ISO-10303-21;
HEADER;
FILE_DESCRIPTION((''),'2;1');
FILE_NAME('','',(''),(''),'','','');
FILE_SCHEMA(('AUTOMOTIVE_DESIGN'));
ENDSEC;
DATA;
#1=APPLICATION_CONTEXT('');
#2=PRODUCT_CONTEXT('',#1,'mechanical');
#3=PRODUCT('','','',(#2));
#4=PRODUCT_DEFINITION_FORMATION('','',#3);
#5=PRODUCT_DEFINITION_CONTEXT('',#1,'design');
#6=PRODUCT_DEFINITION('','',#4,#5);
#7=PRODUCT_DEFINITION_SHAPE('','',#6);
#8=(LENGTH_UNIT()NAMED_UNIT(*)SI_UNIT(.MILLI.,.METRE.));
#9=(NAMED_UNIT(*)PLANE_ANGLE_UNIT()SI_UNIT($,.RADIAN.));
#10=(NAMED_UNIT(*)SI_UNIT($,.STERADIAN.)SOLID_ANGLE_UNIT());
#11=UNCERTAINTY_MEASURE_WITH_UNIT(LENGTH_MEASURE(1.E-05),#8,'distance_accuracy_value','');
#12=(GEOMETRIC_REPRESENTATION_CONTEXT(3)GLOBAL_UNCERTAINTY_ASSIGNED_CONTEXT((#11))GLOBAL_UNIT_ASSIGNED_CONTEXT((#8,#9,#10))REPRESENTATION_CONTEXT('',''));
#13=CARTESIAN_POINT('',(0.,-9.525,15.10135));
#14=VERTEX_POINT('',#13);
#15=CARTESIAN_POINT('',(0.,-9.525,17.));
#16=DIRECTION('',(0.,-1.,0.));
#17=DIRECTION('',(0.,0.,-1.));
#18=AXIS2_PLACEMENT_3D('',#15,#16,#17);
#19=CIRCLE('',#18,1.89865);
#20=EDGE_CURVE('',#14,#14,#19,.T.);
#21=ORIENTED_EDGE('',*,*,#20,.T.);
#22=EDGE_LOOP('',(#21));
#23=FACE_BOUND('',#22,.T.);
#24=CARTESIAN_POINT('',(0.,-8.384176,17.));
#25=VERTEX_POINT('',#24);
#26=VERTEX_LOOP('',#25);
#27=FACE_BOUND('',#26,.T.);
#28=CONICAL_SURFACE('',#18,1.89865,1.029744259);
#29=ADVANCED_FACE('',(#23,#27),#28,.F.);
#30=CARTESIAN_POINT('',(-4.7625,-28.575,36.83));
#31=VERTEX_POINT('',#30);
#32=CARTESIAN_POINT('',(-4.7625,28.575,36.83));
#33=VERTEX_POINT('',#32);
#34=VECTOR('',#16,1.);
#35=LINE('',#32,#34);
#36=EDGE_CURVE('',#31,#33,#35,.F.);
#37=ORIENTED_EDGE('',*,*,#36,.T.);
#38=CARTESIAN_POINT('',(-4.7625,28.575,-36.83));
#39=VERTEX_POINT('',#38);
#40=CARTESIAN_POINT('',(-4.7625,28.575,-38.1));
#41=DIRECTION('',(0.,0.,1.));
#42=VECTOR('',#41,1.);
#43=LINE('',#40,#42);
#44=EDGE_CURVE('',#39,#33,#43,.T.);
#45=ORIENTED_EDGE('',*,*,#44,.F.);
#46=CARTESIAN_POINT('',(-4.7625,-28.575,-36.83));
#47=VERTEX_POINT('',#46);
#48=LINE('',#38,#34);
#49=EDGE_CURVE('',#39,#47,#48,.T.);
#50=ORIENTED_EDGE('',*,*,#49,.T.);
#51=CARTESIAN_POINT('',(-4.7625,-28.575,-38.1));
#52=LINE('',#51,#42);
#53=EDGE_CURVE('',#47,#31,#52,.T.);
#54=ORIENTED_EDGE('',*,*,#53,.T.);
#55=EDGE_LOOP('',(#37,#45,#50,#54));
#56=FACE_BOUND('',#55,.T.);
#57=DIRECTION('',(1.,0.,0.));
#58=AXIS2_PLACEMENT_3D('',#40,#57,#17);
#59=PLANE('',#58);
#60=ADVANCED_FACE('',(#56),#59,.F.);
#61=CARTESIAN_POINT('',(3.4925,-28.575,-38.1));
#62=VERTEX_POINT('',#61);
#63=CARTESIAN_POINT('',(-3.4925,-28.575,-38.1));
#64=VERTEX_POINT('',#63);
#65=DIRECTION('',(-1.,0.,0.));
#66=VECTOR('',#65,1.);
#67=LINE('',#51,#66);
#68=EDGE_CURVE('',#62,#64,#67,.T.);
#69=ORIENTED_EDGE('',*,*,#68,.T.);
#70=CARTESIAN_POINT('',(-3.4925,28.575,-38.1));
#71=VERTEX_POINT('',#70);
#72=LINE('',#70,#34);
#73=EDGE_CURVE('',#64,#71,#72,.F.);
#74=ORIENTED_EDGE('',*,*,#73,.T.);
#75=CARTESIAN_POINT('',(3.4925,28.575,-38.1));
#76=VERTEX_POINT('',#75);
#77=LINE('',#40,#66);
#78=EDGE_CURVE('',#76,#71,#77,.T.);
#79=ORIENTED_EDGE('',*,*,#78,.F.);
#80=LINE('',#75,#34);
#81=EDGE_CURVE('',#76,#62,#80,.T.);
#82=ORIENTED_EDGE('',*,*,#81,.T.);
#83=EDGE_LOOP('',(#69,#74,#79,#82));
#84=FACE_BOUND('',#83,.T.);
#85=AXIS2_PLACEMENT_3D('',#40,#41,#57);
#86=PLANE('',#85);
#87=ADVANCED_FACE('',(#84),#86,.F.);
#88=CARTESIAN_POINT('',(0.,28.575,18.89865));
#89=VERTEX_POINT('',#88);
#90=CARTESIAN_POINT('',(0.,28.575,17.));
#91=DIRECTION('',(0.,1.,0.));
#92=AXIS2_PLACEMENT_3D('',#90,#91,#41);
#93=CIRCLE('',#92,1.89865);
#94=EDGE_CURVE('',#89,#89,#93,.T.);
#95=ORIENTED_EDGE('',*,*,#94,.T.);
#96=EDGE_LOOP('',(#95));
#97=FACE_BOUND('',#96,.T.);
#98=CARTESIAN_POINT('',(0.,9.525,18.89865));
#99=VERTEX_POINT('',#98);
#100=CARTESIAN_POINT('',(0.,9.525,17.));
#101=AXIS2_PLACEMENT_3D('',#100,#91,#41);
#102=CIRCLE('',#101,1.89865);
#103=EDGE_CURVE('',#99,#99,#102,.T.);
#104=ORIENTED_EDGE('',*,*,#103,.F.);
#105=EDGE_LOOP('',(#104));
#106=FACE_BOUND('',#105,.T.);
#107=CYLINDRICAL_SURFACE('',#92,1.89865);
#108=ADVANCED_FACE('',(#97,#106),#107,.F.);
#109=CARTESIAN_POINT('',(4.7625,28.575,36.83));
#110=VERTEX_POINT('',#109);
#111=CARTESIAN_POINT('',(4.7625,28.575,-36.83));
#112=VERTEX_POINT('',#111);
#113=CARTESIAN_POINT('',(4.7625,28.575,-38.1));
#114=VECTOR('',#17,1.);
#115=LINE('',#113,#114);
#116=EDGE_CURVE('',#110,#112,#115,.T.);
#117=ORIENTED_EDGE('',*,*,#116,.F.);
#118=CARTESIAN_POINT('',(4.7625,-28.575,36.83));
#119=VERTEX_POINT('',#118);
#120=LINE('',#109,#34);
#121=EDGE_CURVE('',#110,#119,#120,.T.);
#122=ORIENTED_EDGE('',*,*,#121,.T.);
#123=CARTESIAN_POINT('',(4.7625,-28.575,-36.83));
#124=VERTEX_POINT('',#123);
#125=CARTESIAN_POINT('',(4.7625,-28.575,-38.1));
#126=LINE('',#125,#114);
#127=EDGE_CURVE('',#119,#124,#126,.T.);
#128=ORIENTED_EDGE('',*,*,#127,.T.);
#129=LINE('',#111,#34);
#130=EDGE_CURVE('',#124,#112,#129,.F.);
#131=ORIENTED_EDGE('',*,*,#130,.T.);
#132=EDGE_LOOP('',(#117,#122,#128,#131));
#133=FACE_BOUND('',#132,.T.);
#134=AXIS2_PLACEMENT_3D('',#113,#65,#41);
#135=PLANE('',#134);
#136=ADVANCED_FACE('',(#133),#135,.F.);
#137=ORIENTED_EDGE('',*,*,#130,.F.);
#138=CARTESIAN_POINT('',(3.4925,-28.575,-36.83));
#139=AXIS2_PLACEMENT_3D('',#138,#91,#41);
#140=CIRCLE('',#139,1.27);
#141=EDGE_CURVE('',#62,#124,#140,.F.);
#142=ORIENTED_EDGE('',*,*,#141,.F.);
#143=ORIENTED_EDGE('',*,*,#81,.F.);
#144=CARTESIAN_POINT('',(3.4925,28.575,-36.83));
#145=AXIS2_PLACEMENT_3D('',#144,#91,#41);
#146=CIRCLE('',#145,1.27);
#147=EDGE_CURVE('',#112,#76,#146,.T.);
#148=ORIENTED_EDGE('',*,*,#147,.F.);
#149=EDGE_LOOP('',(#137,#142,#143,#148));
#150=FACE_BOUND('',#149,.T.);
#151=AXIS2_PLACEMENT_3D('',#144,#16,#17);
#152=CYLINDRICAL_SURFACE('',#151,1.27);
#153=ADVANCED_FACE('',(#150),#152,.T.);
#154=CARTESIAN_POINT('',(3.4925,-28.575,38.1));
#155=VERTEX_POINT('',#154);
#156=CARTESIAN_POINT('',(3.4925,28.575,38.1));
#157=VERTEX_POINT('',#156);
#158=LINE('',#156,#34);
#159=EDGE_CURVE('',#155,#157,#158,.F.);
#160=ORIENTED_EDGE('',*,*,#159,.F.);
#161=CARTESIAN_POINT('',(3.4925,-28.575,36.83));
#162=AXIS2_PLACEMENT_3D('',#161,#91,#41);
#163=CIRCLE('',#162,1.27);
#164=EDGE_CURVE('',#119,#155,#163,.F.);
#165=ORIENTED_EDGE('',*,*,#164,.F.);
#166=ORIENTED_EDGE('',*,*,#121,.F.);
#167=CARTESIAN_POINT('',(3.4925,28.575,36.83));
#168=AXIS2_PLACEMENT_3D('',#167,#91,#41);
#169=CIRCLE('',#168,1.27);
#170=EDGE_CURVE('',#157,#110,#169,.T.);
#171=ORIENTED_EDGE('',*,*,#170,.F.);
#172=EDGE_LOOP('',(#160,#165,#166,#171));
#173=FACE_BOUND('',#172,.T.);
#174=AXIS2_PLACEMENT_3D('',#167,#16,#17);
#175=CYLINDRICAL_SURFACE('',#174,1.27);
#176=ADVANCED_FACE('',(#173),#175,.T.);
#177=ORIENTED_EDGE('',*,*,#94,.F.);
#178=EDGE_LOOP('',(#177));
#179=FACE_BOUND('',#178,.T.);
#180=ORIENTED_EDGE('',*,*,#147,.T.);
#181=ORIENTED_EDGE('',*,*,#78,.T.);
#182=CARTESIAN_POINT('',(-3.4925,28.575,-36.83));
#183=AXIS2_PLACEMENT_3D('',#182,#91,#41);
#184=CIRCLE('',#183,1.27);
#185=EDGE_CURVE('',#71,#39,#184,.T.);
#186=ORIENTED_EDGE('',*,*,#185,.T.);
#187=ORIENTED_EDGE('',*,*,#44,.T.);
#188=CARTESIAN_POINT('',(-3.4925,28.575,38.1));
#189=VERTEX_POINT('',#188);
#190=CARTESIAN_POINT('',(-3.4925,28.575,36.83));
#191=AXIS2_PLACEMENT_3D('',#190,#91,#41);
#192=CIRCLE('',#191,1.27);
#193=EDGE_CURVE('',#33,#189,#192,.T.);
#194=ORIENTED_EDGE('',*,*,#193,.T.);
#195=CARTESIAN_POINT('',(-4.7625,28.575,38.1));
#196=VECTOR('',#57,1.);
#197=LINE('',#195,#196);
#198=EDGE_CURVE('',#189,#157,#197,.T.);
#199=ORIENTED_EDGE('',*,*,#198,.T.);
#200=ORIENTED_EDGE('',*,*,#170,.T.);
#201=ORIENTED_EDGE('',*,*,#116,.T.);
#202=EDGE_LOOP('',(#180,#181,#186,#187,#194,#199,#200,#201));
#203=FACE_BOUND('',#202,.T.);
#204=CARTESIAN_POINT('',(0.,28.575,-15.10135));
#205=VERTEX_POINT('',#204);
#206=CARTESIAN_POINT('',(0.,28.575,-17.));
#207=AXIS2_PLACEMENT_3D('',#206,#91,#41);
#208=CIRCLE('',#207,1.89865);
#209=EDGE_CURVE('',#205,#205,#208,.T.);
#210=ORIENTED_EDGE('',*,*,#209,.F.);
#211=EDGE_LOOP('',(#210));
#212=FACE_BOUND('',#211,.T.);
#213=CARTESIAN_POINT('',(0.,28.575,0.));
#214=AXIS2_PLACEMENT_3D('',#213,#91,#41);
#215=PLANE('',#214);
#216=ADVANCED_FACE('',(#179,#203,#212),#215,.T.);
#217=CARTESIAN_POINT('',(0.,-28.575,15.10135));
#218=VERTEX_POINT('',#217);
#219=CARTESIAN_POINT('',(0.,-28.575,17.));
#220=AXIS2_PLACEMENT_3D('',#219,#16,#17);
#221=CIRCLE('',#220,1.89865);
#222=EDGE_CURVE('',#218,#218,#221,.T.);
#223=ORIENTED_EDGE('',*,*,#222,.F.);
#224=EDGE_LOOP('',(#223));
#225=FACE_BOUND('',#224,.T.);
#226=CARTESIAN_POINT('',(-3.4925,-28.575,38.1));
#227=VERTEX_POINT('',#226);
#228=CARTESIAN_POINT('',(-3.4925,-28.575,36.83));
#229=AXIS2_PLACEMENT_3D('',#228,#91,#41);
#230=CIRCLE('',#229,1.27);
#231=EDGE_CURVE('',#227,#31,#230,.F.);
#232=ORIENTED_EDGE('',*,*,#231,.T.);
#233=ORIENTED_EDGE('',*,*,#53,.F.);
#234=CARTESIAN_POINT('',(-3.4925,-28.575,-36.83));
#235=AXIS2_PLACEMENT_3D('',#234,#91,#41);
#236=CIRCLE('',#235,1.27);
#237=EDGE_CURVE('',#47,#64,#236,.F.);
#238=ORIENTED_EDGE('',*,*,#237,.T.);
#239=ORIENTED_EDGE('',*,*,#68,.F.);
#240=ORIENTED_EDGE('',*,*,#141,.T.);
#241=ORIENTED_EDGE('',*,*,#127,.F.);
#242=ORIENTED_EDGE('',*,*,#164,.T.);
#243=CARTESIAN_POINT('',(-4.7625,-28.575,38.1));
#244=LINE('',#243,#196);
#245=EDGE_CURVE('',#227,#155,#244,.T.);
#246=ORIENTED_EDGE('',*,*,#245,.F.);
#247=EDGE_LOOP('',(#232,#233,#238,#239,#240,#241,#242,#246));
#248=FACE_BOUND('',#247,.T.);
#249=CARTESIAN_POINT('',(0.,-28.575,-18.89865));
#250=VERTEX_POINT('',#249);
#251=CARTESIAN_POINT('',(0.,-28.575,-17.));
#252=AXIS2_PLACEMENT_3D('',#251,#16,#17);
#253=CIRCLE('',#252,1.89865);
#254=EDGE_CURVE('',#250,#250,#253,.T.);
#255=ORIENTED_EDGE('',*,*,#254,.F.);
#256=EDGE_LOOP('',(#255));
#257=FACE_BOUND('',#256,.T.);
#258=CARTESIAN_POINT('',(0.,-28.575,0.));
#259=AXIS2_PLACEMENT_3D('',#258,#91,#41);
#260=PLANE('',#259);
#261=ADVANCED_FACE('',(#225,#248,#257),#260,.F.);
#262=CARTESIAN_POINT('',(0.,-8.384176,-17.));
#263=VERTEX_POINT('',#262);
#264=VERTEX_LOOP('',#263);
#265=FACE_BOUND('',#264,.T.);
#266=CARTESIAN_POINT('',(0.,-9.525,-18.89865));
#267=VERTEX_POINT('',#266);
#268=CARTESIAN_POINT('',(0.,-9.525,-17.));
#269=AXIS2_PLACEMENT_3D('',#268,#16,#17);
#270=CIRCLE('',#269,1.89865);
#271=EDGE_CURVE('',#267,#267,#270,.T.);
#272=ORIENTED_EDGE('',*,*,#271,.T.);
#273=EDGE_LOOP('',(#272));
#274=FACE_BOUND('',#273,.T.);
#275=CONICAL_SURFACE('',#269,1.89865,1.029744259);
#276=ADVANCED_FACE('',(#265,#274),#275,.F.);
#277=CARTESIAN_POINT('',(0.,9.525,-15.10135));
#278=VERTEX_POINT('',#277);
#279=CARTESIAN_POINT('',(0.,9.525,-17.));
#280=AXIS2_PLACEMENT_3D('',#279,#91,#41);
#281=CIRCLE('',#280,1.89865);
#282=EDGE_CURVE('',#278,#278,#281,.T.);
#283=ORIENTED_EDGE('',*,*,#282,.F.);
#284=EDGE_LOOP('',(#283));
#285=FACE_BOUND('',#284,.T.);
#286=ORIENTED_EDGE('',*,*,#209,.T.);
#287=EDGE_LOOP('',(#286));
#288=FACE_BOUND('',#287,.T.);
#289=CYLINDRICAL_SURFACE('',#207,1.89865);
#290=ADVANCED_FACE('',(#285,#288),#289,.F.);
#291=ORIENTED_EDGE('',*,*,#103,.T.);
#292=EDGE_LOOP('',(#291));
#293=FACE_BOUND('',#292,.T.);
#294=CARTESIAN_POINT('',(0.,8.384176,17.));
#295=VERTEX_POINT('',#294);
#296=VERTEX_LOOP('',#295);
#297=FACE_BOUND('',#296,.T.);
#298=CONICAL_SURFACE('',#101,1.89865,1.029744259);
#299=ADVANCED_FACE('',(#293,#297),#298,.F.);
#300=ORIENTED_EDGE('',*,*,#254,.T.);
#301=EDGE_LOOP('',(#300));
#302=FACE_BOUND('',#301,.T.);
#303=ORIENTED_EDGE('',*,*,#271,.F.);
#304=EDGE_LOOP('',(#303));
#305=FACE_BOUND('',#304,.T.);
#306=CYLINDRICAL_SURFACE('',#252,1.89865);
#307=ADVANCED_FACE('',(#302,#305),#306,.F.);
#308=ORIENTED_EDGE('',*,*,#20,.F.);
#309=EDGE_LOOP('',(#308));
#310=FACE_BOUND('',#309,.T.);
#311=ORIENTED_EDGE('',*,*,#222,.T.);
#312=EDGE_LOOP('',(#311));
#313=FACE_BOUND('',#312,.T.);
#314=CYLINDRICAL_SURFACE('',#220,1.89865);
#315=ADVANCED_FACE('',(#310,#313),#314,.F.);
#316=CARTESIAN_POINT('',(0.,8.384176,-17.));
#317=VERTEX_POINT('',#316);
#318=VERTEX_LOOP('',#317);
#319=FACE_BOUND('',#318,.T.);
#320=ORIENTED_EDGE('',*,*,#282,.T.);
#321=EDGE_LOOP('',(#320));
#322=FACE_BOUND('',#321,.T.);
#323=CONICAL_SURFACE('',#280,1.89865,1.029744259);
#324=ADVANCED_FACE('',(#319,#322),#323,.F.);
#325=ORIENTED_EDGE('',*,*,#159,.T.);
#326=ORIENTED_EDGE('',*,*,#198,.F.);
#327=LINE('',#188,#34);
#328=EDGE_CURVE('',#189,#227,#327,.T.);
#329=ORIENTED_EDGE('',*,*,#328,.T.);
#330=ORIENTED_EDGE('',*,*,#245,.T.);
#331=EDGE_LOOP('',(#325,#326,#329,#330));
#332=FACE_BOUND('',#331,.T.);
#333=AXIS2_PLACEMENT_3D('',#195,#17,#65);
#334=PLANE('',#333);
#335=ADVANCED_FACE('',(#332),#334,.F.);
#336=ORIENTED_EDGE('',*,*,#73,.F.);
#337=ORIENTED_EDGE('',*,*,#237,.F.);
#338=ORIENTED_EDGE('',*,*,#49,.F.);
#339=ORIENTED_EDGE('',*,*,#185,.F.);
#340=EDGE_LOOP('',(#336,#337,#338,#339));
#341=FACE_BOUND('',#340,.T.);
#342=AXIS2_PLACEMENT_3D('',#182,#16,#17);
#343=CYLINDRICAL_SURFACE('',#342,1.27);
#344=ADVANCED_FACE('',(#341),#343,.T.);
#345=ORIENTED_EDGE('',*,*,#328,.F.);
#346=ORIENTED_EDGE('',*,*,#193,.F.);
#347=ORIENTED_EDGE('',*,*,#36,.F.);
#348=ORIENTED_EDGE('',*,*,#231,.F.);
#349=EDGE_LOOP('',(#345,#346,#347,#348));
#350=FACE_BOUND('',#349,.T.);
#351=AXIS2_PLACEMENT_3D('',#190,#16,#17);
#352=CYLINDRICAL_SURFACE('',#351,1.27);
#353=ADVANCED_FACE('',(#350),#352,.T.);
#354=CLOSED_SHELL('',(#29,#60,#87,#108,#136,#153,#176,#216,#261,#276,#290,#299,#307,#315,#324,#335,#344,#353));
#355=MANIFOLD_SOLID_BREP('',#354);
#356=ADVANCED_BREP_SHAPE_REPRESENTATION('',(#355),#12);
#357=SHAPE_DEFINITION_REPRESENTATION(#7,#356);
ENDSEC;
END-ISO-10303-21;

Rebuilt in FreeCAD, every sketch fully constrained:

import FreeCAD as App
import Part
import Sketcher

V = App.Vector
Q = App.Units.Quantity


def edges_at(feature, points):
    """Names of the edges that pass closest to the given points."""
    edges = feature.Shape.Edges
    near = lambda p: min(range(len(edges)), key=lambda i: edges[i].distToShape(Part.Vertex(*p))[0])
    return sorted({f"Edge{near(p) + 1}" for p in points})


def add_polygon(sketch, points):
    """Adds a closed chain of lines whose ends are joined by coincident constraints."""
    first, n = sketch.GeometryCount, len(points)
    for a, b in zip(points, points[1:] + points[:1]):
        sketch.addGeometry(Part.LineSegment(App.Vector(*a, 0), App.Vector(*b, 0)), False)
    for i in range(n):
        sketch.addConstraint(Sketcher.Constraint("Coincident", first + i, 2, first + (i + 1) % n, 1))

doc = App.newDocument("Part")
body = doc.addObject("PartDesign::Body", "Body")

# Sketch on XZ plane
sketch1 = body.newObject("Sketcher::SketchObject", "Sketch")
sketch1.AttachmentSupport = (doc.getObject("XZ_Plane"), [""])
sketch1.MapMode = "FlatFace"
add_polygon(sketch1, [(-5, -38), (-5, 38), (5, 38), (5, -38)])  # lines 0-3
sketch1.addConstraint([
    Sketcher.Constraint("Vertical", 0),
    Sketcher.Constraint("Horizontal", 1),
    Sketcher.Constraint("Vertical", 2),
    Sketcher.Constraint("Horizontal", 3),
    Sketcher.Constraint("Symmetric", 0, 2, 2, 2, -1, 1),
    Sketcher.Constraint("DistanceY", 0, 1, 0, 2, Q("3 in")),
    Sketcher.Constraint("DistanceX", 1, 1, 1, 2, Q("0.375 in")),
])
pad1 = body.newObject("PartDesign::Pad", "Pad")
pad1.Profile = sketch1
pad1.Length = Q("2.25 in")
pad1.Midplane = True

# Sketch on YZ plane
sketch2 = body.newObject("Sketcher::SketchObject", "Sketch001")
sketch2.AttachmentSupport = (doc.getObject("YZ_Plane"), [""])
sketch2.MapMode = "FlatFace"
add_polygon(sketch2, [(8.4, -17), (28.6, -17), (28.6, -15.1), (9.5, -15.1)])  # lines 0-3
sketch2.addGeometry(Part.LineSegment(V(28.6, -17, 0), V(8.4, -17, 0)), True)  # axis
sketch2.addConstraint([
    Sketcher.Constraint("Horizontal", 0),
    Sketcher.Constraint("Vertical", 1),
    Sketcher.Constraint("Horizontal", 2),
    Sketcher.Constraint("Horizontal", 4),
    Sketcher.Constraint("Coincident", 4, 1, 0, 2),
    Sketcher.Constraint("Equal", 0, 4),
    Sketcher.Constraint("Angle", 3, Q("-121 deg")),
    Sketcher.Constraint("DistanceX", 2, 2, 2, 1, Q("0.75 in")),
    Sketcher.Constraint("DistanceX", -1, 1, 0, 2, Q("1.125 in")),
    Sketcher.Constraint("DistanceY", 1, 1, 1, 2, Q("1.89865 mm")),
    Sketcher.Constraint("DistanceY", 0, 2, -1, 1, Q("17 mm")),
])
groove = body.newObject("PartDesign::Groove", "Groove")
groove.Profile = sketch2
groove.ReferenceAxis = (sketch2, ["Axis0"])
groove.Angle = 360
doc.recompute()

linearpattern = body.newObject("PartDesign::LinearPattern", "LinearPattern")
linearpattern.Originals = [groove]
linearpattern.Direction = (doc.getObject("Z_Axis"), [""])
linearpattern.Mode = "offset"
linearpattern.Offset = 34
linearpattern.Occurrences = 2
body.Tip = linearpattern
doc.recompute()

mirrored = body.newObject("PartDesign::Mirrored", "Mirrored")
mirrored.Originals = [groove]
mirrored.MirrorPlane = (doc.getObject("XZ_Plane"), [""])
body.Tip = mirrored

# Sketch on YZ plane
sketch3 = body.newObject("Sketcher::SketchObject", "Sketch002")
sketch3.AttachmentSupport = (doc.getObject("YZ_Plane"), [""])
sketch3.MapMode = "FlatFace"
add_polygon(sketch3, [(-28.6, 17), (-8.4, 17), (-9.5, 18.9), (-28.6, 18.9)])  # lines 0-3
sketch3.addGeometry(Part.LineSegment(V(-8.4, 17, 0), V(-28.6, 17, 0)), True)  # axis
sketch3.addConstraint([
    Sketcher.Constraint("Horizontal", 0),
    Sketcher.Constraint("Horizontal", 2),
    Sketcher.Constraint("Vertical", 3),
    Sketcher.Constraint("Horizontal", 4),
    Sketcher.Constraint("Coincident", 4, 1, 0, 2),
    Sketcher.Constraint("Vertical", 2, 2, 4, 2),
    Sketcher.Constraint("Angle", 1, Q("121 deg")),
    Sketcher.Constraint("DistanceX", 2, 2, 2, 1, Q("0.75 in")),
    Sketcher.Constraint("DistanceX", 1, 2, -1, 1, Q("0.375 in")),
    Sketcher.Constraint("DistanceY", 3, 2, 3, 1, Q("1.89865 mm")),
    Sketcher.Constraint("DistanceY", -1, 1, 0, 2, Q("17 mm")),
])
groove2 = body.newObject("PartDesign::Groove", "Groove001")
groove2.Profile = sketch3
groove2.ReferenceAxis = (sketch3, ["Axis0"])
groove2.Angle = 360
doc.recompute()

fillet = body.newObject("PartDesign::Fillet", "Fillet")
fillet.Base = (groove2, edges_at(groove2, [
    (-4.763, 0, -38.1),
    (4.763, 0, -38.1),
    (4.763, 0, 38.1),
    (-4.763, 0, 38.1),
]))
fillet.Radius = Q("0.05 in")

doc.recompute()
